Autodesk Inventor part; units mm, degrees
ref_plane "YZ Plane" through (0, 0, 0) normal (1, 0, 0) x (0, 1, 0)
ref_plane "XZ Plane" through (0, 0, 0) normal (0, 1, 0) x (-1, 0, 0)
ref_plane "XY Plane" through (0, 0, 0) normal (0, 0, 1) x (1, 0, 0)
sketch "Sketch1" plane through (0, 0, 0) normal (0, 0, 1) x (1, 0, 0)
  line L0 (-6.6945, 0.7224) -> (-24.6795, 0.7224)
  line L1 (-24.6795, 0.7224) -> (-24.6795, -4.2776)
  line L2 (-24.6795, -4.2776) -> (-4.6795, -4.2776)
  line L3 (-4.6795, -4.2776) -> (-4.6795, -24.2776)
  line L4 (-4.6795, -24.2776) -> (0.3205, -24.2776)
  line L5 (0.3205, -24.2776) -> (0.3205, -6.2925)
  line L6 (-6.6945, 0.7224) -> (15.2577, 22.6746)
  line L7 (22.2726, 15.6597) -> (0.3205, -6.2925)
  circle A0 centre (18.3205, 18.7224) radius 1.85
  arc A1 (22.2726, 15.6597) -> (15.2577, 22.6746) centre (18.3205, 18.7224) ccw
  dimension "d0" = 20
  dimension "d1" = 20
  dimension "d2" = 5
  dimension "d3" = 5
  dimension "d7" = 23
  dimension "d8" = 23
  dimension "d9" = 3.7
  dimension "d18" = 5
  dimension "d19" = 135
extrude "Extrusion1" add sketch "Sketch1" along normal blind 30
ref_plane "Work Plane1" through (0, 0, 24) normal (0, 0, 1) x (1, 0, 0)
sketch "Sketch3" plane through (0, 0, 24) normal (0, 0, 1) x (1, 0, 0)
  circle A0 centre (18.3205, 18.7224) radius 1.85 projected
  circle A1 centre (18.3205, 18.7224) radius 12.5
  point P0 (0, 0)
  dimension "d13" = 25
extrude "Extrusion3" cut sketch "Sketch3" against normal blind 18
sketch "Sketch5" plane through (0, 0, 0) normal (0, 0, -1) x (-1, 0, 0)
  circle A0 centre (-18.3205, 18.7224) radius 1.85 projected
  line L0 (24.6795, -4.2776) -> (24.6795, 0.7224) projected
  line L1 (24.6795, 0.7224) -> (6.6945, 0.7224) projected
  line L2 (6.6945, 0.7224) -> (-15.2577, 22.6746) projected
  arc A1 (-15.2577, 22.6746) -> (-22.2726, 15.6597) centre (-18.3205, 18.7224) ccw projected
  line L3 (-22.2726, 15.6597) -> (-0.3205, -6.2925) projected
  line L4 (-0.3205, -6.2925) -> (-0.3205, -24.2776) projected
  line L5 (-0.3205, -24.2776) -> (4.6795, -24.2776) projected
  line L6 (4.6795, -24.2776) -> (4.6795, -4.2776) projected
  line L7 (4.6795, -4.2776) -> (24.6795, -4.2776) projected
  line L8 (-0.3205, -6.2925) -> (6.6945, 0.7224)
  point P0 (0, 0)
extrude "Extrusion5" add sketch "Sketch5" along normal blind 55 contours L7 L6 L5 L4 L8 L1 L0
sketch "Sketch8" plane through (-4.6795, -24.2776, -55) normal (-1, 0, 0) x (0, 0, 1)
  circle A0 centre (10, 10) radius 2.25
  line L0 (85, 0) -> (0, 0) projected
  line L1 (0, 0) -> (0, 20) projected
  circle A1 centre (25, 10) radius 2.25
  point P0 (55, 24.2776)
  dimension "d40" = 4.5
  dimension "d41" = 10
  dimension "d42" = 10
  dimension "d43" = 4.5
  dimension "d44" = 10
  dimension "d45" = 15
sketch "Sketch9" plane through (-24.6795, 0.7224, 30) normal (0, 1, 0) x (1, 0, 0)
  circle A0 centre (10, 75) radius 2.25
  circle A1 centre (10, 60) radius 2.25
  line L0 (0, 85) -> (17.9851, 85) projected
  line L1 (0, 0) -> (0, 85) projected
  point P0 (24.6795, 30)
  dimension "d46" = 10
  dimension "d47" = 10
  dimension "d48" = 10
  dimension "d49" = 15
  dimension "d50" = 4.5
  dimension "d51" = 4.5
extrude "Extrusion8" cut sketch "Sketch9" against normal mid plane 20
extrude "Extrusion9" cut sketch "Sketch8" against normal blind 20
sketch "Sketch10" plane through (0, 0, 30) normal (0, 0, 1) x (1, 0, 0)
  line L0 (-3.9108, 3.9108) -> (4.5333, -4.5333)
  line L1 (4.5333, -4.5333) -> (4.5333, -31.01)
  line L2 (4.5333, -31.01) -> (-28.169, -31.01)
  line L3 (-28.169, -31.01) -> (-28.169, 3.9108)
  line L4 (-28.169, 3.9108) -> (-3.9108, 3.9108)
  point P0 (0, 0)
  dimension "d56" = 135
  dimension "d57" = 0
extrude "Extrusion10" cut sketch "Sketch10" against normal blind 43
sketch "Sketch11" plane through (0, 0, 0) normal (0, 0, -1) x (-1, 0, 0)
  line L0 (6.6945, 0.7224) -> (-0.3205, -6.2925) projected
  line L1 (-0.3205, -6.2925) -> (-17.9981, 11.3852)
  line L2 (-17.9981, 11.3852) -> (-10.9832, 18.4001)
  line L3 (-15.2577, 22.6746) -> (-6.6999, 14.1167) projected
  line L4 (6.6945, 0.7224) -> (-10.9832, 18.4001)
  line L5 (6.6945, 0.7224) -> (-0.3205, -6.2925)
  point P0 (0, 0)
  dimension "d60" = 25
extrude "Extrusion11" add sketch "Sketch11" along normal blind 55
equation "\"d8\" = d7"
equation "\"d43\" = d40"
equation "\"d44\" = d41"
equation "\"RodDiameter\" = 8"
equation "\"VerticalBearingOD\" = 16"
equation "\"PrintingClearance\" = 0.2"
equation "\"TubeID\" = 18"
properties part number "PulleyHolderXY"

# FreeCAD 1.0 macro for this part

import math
import FreeCAD as App
import Part
import Sketcher
from FreeCAD import Vector
Q = App.Units.Quantity

doc = App.newDocument("Part")
body = doc.addObject("PartDesign::Body", "Body")
body.AllowCompound = True

sketch1 = body.newObject("Sketcher::SketchObject", "Sketch")
sketch1.AttachmentSupport = (doc.getObject("XY_Plane"), [""])
sketch1.MapMode = "FlatFace"
sketch1.addGeometry(Part.LineSegment(Vector(15.3, 22.7, 0), Vector(-6.7, 0.7, 0)), False)
sketch1.addGeometry(Part.LineSegment(Vector(-6.7, 0.7, 0), Vector(-24.7, 0.7, 0)), False)
sketch1.addGeometry(Part.LineSegment(Vector(-24.7, 0.7, 0), Vector(-24.7, -4.3, 0)), False)
sketch1.addGeometry(Part.LineSegment(Vector(-24.7, -4.3, 0), Vector(-4.7, -4.3, 0)), False)
sketch1.addGeometry(Part.LineSegment(Vector(-4.7, -4.3, 0), Vector(-4.7, -24.3, 0)), False)
sketch1.addGeometry(Part.LineSegment(Vector(-4.7, -24.3, 0), Vector(0.3, -24.3, 0)), False)
sketch1.addGeometry(Part.LineSegment(Vector(0.3, -24.3, 0), Vector(0.3, -6.3, 0)), False)
sketch1.addGeometry(Part.LineSegment(Vector(0.3, -6.3, 0), Vector(22.3, 15.7, 0)), False)
sketch1.addGeometry(Part.ArcOfCircle(Part.Circle(Vector(18.3, 18.7, 0), Vector(0, 0, 1), 5), math.radians(-38), math.radians(128)), False)
sketch1.addGeometry(Part.Circle(Vector(18.3, 18.7, 0), Vector(0, 0, 1), 1.9), False)
sketch1.addConstraint(Sketcher.Constraint("Coincident", 0, 2, 1, 1))
sketch1.addConstraint(Sketcher.Constraint("Coincident", 1, 2, 2, 1))
sketch1.addConstraint(Sketcher.Constraint("Coincident", 2, 2, 3, 1))
sketch1.addConstraint(Sketcher.Constraint("Coincident", 3, 2, 4, 1))
sketch1.addConstraint(Sketcher.Constraint("Coincident", 4, 2, 5, 1))
sketch1.addConstraint(Sketcher.Constraint("Coincident", 5, 2, 6, 1))
sketch1.addConstraint(Sketcher.Constraint("Coincident", 6, 2, 7, 1))
sketch1.addConstraint(Sketcher.Constraint("Coincident", 7, 2, 8, 1))
sketch1.addConstraint(Sketcher.Constraint("Coincident", 8, 2, 0, 1))
sketch1.addConstraint(Sketcher.Constraint("Horizontal", 1))
sketch1.addConstraint(Sketcher.Constraint("Vertical", 2))
sketch1.addConstraint(Sketcher.Constraint("Horizontal", 3))
sketch1.addConstraint(Sketcher.Constraint("Vertical", 4))
sketch1.addConstraint(Sketcher.Constraint("Horizontal", 5))
sketch1.addConstraint(Sketcher.Constraint("Vertical", 6))
sketch1.addConstraint(Sketcher.Constraint("Coincident", 9, 3, 8, 3))
sketch1.addConstraint(Sketcher.Constraint("Parallel", 0, 7))
sketch1.addConstraint(Sketcher.Constraint("Equal", 5, 2))
sketch1.addConstraint(Sketcher.Constraint("Equal", 3, 4))
sketch1.addConstraint(Sketcher.Constraint("Equal", 1, 6))
sketch1.addConstraint(Sketcher.Constraint("Equal", 0, 7))
sketch1.addConstraint(Sketcher.Constraint("Radius", 8, Q("5 mm")))
sketch1.addConstraint(Sketcher.Constraint("Diameter", 9, Q("3.7 mm")))
sketch1.addConstraint(Sketcher.Constraint("DistanceX", 3, 1, 3, 2, Q("20 mm")))
sketch1.addConstraint(Sketcher.Constraint("DistanceX", 5, 1, 5, 2, Q("5 mm")))
sketch1.addConstraint(Sketcher.Constraint("Angle", 0, Q("-135 deg")))
sketch1.addConstraint(Sketcher.Constraint("DistanceY", 2, 2, 8, 3, Q("23 mm")))
sketch1.addConstraint(Sketcher.Constraint("DistanceX", 1, 2, 1, 1, Q("17.985 mm")))
sketch1.addConstraint(Sketcher.Constraint("DistanceX", -1, 1, 8, 3, Q("18.3205 mm")))
sketch1.addConstraint(Sketcher.Constraint("DistanceY", -1, 1, 8, 3, Q("18.7224 mm")))
pad1 = body.newObject("PartDesign::Pad", "Pad")
pad1.Profile = sketch1
pad1.Length = 30

sketch2 = body.newObject("Sketcher::SketchObject", "Sketch001")
sketch2.AttachmentSupport = (doc.getObject("XY_Plane"), [""])
sketch2.MapMode = "FlatFace"
sketch2.AttachmentOffset = App.Placement(Vector(0, 0, 24), App.Rotation())
sketch2.addGeometry(Part.Circle(Vector(18.3, 18.7, 0), Vector(0, 0, 1), 12.5), False)
sketch2.addGeometry(Part.Circle(Vector(18.3, 18.7, 0), Vector(0, 0, 1), 1.9), False)
sketch2.addConstraint(Sketcher.Constraint("Coincident", 1, 3, 0, 3))
sketch2.addConstraint(Sketcher.Constraint("Diameter", 0, Q("25 mm")))
sketch2.addConstraint(Sketcher.Constraint("Diameter", 1, Q("3.7 mm")))
sketch2.addConstraint(Sketcher.Constraint("DistanceX", -1, 1, 0, 3, Q("18.3205 mm")))
sketch2.addConstraint(Sketcher.Constraint("DistanceY", -1, 1, 0, 3, Q("18.7224 mm")))
pocket1 = body.newObject("PartDesign::Pocket", "Pocket")
pocket1.Profile = sketch2
pocket1.Length = 18

sketch3 = body.newObject("Sketcher::SketchObject", "Sketch002")
sketch3.AttachmentSupport = (doc.getObject("XY_Plane"), [""])
sketch3.MapMode = "FlatFace"
sketch3.addGeometry(Part.LineSegment(Vector(-5, -4, 0), Vector(-25, -4, 0)), False)
sketch3.addGeometry(Part.LineSegment(Vector(-25, -4, 0), Vector(-25, 1, 0)), False)
sketch3.addGeometry(Part.LineSegment(Vector(-25, 1, 0), Vector(-7, 1, 0)), False)
sketch3.addGeometry(Part.LineSegment(Vector(-7, 1, 0), Vector(0, -6, 0)), False)
sketch3.addGeometry(Part.LineSegment(Vector(0, -6, 0), Vector(0, -24, 0)), False)
sketch3.addGeometry(Part.LineSegment(Vector(0, -24, 0), Vector(-5, -24, 0)), False)
sketch3.addGeometry(Part.LineSegment(Vector(-5, -24, 0), Vector(-5, -4, 0)), False)
sketch3.addConstraint(Sketcher.Constraint("Coincident", 0, 2, 1, 1))
sketch3.addConstraint(Sketcher.Constraint("Coincident", 1, 2, 2, 1))
sketch3.addConstraint(Sketcher.Constraint("Coincident", 2, 2, 3, 1))
sketch3.addConstraint(Sketcher.Constraint("Coincident", 3, 2, 4, 1))
sketch3.addConstraint(Sketcher.Constraint("Coincident", 4, 2, 5, 1))
sketch3.addConstraint(Sketcher.Constraint("Coincident", 5, 2, 6, 1))
sketch3.addConstraint(Sketcher.Constraint("Coincident", 6, 2, 0, 1))
sketch3.addConstraint(Sketcher.Constraint("Horizontal", 0))
sketch3.addConstraint(Sketcher.Constraint("Vertical", 1))
sketch3.addConstraint(Sketcher.Constraint("Horizontal", 2))
sketch3.addConstraint(Sketcher.Constraint("Vertical", 4))
sketch3.addConstraint(Sketcher.Constraint("Horizontal", 5))
sketch3.addConstraint(Sketcher.Constraint("Vertical", 6))
sketch3.addConstraint(Sketcher.Constraint("Equal", 5, 1))
sketch3.addConstraint(Sketcher.Constraint("Equal", 2, 4))
sketch3.addConstraint(Sketcher.Constraint("Equal", 0, 6))
sketch3.addConstraint(Sketcher.Constraint("DistanceX", 0, 2, 0, 1, Q("20 mm")))
sketch3.addConstraint(Sketcher.Constraint("DistanceX", 5, 2, 5, 1, Q("5 mm")))
sketch3.addConstraint(Sketcher.Constraint("DistanceX", 2, 1, 2, 2, Q("17.985 mm")))
sketch3.addConstraint(Sketcher.Constraint("DistanceX", 0, 2, -1, 1, Q("24.6795 mm")))
sketch3.addConstraint(Sketcher.Constraint("DistanceY", 0, 2, -1, 1, Q("4.2776 mm")))
pad2 = body.newObject("PartDesign::Pad", "Pad001")
pad2.Profile = sketch3
pad2.Length = 55
pad2.Reversed = True

sketch4 = body.newObject("Sketcher::SketchObject", "Sketch003")
sketch4.AttachmentSupport = (doc.getObject("XZ_Plane"), [""])
sketch4.MapMode = "FlatFace"
sketch4.AttachmentOffset = App.Placement(Vector(0, 0, -0.7224), App.Rotation())
sketch4.addGeometry(Part.Circle(Vector(-14.7, -45, 0), Vector(0, 0, 1), 2.2), False)
sketch4.addGeometry(Part.Circle(Vector(-14.7, -30, 0), Vector(0, 0, 1), 2.2), False)
sketch4.addConstraint(Sketcher.Constraint("Equal", 0, 1))
sketch4.addConstraint(Sketcher.Constraint("Vertical", 0, 3, 1, 3))
sketch4.addConstraint(Sketcher.Constraint("Diameter", 0, Q("4.5 mm")))
sketch4.addConstraint(Sketcher.Constraint("DistanceY", 0, 3, 1, 3, Q("15 mm")))
sketch4.addConstraint(Sketcher.Constraint("DistanceY", 0, 3, -1, 1, Q("45 mm")))
sketch4.addConstraint(Sketcher.Constraint("DistanceX", 0, 3, -1, 1, Q("14.6795 mm")))
pocket2 = body.newObject("PartDesign::Pocket", "Pocket001")
pocket2.Profile = sketch4
pocket2.Length = 20
pocket2.Midplane = True

sketch5 = body.newObject("Sketcher::SketchObject", "Sketch004")
sketch5.AttachmentSupport = (doc.getObject("YZ_Plane"), [""])
sketch5.MapMode = "FlatFace"
sketch5.AttachmentOffset = App.Placement(Vector(0, 0, -4.6795), App.Rotation())
sketch5.addGeometry(Part.Circle(Vector(-14.3, -45, 0), Vector(0, 0, 1), 2.2), False)
sketch5.addGeometry(Part.Circle(Vector(-14.3, -30, 0), Vector(0, 0, 1), 2.2), False)
sketch5.addConstraint(Sketcher.Constraint("Equal", 0, 1))
sketch5.addConstraint(Sketcher.Constraint("Vertical", 0, 3, 1, 3))
sketch5.addConstraint(Sketcher.Constraint("Diameter", 0, Q("4.5 mm")))
sketch5.addConstraint(Sketcher.Constraint("DistanceY", 0, 3, 1, 3, Q("15 mm")))
sketch5.addConstraint(Sketcher.Constraint("DistanceY", 0, 3, -1, 1, Q("45 mm")))
sketch5.addConstraint(Sketcher.Constraint("DistanceX", 0, 3, -1, 1, Q("14.2776 mm")))
pocket3 = body.newObject("PartDesign::Pocket", "Pocket002")
pocket3.Profile = sketch5
pocket3.Length = 20
pocket3.Reversed = True

sketch6 = body.newObject("Sketcher::SketchObject", "Sketch005")
sketch6.AttachmentSupport = (doc.getObject("XY_Plane"), [""])
sketch6.MapMode = "FlatFace"
sketch6.AttachmentOffset = App.Placement(Vector(0, 0, 30), App.Rotation())
sketch6.addGeometry(Part.LineSegment(Vector(5, -5, 0), Vector(-4, 4, 0)), False)
sketch6.addGeometry(Part.LineSegment(Vector(-4, 4, 0), Vector(-28, 4, 0)), False)
sketch6.addGeometry(Part.LineSegment(Vector(-28, 4, 0), Vector(-28, -31, 0)), False)
sketch6.addGeometry(Part.LineSegment(Vector(-28, -31, 0), Vector(5, -31, 0)), False)
sketch6.addGeometry(Part.LineSegment(Vector(5, -31, 0), Vector(5, -5, 0)), False)
sketch6.addConstraint(Sketcher.Constraint("Coincident", 0, 2, 1, 1))
sketch6.addConstraint(Sketcher.Constraint("Coincident", 1, 2, 2, 1))
sketch6.addConstraint(Sketcher.Constraint("Coincident", 2, 2, 3, 1))
sketch6.addConstraint(Sketcher.Constraint("Coincident", 3, 2, 4, 1))
sketch6.addConstraint(Sketcher.Constraint("Coincident", 4, 2, 0, 1))
sketch6.addConstraint(Sketcher.Constraint("Horizontal", 1))
sketch6.addConstraint(Sketcher.Constraint("Vertical", 2))
sketch6.addConstraint(Sketcher.Constraint("Horizontal", 3))
sketch6.addConstraint(Sketcher.Constraint("Vertical", 4))
sketch6.addConstraint(Sketcher.Constraint("Angle", 0, Q("135 deg")))
sketch6.addConstraint(Sketcher.Constraint("DistanceY", 2, 2, -1, 1, Q("31.01 mm")))
sketch6.addConstraint(Sketcher.Constraint("DistanceX", 1, 2, 1, 1, Q("24.2582 mm")))
sketch6.addConstraint(Sketcher.Constraint("DistanceX", 3, 1, 3, 2, Q("32.7023 mm")))
sketch6.addConstraint(Sketcher.Constraint("DistanceY", 2, 2, 2, 1, Q("34.9208 mm")))
sketch6.addConstraint(Sketcher.Constraint("DistanceX", 1, 2, -1, 1, Q("28.169 mm")))
pocket4 = body.newObject("PartDesign::Pocket", "Pocket003")
pocket4.Profile = sketch6
pocket4.Length = 43

sketch7 = body.newObject("Sketcher::SketchObject", "Sketch006")
sketch7.AttachmentSupport = (doc.getObject("XY_Plane"), [""])
sketch7.MapMode = "FlatFace"
sketch7.addGeometry(Part.LineSegment(Vector(0, -6, 0), Vector(-7, 1, 0)), False)
sketch7.addGeometry(Part.LineSegment(Vector(-7, 1, 0), Vector(7, 14, 0)), False)
sketch7.addGeometry(Part.LineSegment(Vector(7, 14, 0), Vector(11, 18, 0)), False)
sketch7.addGeometry(Part.LineSegment(Vector(11, 18, 0), Vector(18, 11, 0)), False)
sketch7.addGeometry(Part.LineSegment(Vector(18, 11, 0), Vector(0, -6, 0)), False)
sketch7.addConstraint(Sketcher.Constraint("Coincident", 0, 2, 1, 1))
sketch7.addConstraint(Sketcher.Constraint("Coincident", 1, 2, 2, 1))
sketch7.addConstraint(Sketcher.Constraint("Coincident", 2, 2, 3, 1))
sketch7.addConstraint(Sketcher.Constraint("Coincident", 3, 2, 4, 1))
sketch7.addConstraint(Sketcher.Constraint("Coincident", 4, 2, 0, 1))
sketch7.addConstraint(Sketcher.Constraint("Perpendicular", 0, 1))
sketch7.addConstraint(Sketcher.Constraint("Parallel", 1, 2))
sketch7.addConstraint(Sketcher.Constraint("Perpendicular", 2, 3))
sketch7.addConstraint(Sketcher.Constraint("Perpendicular", 3, 4))
sketch7.addConstraint(Sketcher.Constraint("Distance", 4, Q("25 mm")))
sketch7.addConstraint(Sketcher.Constraint("Angle", 0, Q("135.0004 deg")))
sketch7.addConstraint(Sketcher.Constraint("DistanceY", -1, 1, 2, 2, Q("18.4 mm")))
sketch7.addConstraint(Sketcher.Constraint("DistanceX", -1, 1, 3, 2, Q("17.998 mm")))
sketch7.addConstraint(Sketcher.Constraint("DistanceX", 0, 2, 4, 2, Q("7.015 mm")))
sketch7.addConstraint(Sketcher.Constraint("Distance", 1, Q("18.9425 mm")))
pad3 = body.newObject("PartDesign::Pad", "Pad002")
pad3.Profile = sketch7
pad3.Length = 55
pad3.Reversed = True

doc.recompute()
